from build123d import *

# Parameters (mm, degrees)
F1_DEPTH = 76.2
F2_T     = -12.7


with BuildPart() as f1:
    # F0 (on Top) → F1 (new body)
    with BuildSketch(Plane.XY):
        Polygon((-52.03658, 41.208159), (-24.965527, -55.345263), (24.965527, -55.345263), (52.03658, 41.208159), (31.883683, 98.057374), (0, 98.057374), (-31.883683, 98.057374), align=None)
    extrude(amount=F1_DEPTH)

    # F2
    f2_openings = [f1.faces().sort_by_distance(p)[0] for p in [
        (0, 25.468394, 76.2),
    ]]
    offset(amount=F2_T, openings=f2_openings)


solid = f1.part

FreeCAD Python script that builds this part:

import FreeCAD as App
import Part
import Sketcher
from FreeCAD import Vector
Q = App.Units.Quantity


def faces_at(feature, points):
    """Names of the faces that lie closest to the given points."""
    faces = feature.Shape.Faces
    near = lambda p: min(range(len(faces)), key=lambda i: faces[i].distToShape(Part.Vertex(*p))[0])
    return sorted({f"Face{near(p) + 1}" for p in points})


def add_polygon(sketch, points):
    """Adds a closed chain of lines whose ends are joined by coincident constraints."""
    first, n = sketch.GeometryCount, len(points)
    for a, b in zip(points, points[1:] + points[:1]):
        sketch.addGeometry(Part.LineSegment(App.Vector(*a, 0), App.Vector(*b, 0)), False)
    for i in range(n):
        sketch.addConstraint(Sketcher.Constraint("Coincident", first + i, 2, first + (i + 1) % n, 1))

doc = App.newDocument("Part")
body = doc.addObject("PartDesign::Body", "Body")

# Sketch on XY plane
sketch1 = body.newObject("Sketcher::SketchObject", "Sketch")
sketch1.AttachmentSupport = (doc.getObject("XY_Plane"), [""])
sketch1.MapMode = "FlatFace"
add_polygon(sketch1, [(-52.03658, 41.208159), (-24.965527, -55.345263), (24.965527, -55.345263), (52.03658, 41.208159), (31.883683, 98.057374), (-31.883683, 98.057374)])  # lines 0-5
sketch1.addConstraint(Sketcher.Constraint("Horizontal", 1))
sketch1.addConstraint(Sketcher.Constraint("Horizontal", 4))
sketch1.addConstraint(Sketcher.Constraint("Symmetric", 2, 2, 5, 2, -2))
sketch1.addConstraint(Sketcher.Constraint("Equal", 0, 2))
sketch1.addConstraint(Sketcher.Constraint("Equal", 3, 5))
sketch1.addConstraint(Sketcher.Constraint("DistanceX", 1, 1, 1, 2, 49.931054))
sketch1.addConstraint(Sketcher.Constraint("DistanceX", 4, 2, 4, 1, 63.767366))
sketch1.addConstraint(Sketcher.Constraint("DistanceX", -1, 1, 2, 2, 52.03658))
sketch1.addConstraint(Sketcher.Constraint("DistanceY", -1, 1, 2, 2, 41.208159))
sketch1.addConstraint(Sketcher.Constraint("Distance", 0, 100.276643))
sketch1.addConstraint(Sketcher.Constraint("Distance", 3, 60.315607))
pad1 = body.newObject("PartDesign::Pad", "Pad")
pad1.Profile = sketch1
pad1.Length = Q("3 in")
doc.recompute()

thickness = body.newObject("PartDesign::Thickness", "Thickness")
thickness.Base = (pad1, faces_at(pad1, [(0, 21.356, 76.2)]))
thickness.Value = Q("0.5 in")
thickness.Reversed = True
thickness.Join = "Arc"

doc.recompute()
